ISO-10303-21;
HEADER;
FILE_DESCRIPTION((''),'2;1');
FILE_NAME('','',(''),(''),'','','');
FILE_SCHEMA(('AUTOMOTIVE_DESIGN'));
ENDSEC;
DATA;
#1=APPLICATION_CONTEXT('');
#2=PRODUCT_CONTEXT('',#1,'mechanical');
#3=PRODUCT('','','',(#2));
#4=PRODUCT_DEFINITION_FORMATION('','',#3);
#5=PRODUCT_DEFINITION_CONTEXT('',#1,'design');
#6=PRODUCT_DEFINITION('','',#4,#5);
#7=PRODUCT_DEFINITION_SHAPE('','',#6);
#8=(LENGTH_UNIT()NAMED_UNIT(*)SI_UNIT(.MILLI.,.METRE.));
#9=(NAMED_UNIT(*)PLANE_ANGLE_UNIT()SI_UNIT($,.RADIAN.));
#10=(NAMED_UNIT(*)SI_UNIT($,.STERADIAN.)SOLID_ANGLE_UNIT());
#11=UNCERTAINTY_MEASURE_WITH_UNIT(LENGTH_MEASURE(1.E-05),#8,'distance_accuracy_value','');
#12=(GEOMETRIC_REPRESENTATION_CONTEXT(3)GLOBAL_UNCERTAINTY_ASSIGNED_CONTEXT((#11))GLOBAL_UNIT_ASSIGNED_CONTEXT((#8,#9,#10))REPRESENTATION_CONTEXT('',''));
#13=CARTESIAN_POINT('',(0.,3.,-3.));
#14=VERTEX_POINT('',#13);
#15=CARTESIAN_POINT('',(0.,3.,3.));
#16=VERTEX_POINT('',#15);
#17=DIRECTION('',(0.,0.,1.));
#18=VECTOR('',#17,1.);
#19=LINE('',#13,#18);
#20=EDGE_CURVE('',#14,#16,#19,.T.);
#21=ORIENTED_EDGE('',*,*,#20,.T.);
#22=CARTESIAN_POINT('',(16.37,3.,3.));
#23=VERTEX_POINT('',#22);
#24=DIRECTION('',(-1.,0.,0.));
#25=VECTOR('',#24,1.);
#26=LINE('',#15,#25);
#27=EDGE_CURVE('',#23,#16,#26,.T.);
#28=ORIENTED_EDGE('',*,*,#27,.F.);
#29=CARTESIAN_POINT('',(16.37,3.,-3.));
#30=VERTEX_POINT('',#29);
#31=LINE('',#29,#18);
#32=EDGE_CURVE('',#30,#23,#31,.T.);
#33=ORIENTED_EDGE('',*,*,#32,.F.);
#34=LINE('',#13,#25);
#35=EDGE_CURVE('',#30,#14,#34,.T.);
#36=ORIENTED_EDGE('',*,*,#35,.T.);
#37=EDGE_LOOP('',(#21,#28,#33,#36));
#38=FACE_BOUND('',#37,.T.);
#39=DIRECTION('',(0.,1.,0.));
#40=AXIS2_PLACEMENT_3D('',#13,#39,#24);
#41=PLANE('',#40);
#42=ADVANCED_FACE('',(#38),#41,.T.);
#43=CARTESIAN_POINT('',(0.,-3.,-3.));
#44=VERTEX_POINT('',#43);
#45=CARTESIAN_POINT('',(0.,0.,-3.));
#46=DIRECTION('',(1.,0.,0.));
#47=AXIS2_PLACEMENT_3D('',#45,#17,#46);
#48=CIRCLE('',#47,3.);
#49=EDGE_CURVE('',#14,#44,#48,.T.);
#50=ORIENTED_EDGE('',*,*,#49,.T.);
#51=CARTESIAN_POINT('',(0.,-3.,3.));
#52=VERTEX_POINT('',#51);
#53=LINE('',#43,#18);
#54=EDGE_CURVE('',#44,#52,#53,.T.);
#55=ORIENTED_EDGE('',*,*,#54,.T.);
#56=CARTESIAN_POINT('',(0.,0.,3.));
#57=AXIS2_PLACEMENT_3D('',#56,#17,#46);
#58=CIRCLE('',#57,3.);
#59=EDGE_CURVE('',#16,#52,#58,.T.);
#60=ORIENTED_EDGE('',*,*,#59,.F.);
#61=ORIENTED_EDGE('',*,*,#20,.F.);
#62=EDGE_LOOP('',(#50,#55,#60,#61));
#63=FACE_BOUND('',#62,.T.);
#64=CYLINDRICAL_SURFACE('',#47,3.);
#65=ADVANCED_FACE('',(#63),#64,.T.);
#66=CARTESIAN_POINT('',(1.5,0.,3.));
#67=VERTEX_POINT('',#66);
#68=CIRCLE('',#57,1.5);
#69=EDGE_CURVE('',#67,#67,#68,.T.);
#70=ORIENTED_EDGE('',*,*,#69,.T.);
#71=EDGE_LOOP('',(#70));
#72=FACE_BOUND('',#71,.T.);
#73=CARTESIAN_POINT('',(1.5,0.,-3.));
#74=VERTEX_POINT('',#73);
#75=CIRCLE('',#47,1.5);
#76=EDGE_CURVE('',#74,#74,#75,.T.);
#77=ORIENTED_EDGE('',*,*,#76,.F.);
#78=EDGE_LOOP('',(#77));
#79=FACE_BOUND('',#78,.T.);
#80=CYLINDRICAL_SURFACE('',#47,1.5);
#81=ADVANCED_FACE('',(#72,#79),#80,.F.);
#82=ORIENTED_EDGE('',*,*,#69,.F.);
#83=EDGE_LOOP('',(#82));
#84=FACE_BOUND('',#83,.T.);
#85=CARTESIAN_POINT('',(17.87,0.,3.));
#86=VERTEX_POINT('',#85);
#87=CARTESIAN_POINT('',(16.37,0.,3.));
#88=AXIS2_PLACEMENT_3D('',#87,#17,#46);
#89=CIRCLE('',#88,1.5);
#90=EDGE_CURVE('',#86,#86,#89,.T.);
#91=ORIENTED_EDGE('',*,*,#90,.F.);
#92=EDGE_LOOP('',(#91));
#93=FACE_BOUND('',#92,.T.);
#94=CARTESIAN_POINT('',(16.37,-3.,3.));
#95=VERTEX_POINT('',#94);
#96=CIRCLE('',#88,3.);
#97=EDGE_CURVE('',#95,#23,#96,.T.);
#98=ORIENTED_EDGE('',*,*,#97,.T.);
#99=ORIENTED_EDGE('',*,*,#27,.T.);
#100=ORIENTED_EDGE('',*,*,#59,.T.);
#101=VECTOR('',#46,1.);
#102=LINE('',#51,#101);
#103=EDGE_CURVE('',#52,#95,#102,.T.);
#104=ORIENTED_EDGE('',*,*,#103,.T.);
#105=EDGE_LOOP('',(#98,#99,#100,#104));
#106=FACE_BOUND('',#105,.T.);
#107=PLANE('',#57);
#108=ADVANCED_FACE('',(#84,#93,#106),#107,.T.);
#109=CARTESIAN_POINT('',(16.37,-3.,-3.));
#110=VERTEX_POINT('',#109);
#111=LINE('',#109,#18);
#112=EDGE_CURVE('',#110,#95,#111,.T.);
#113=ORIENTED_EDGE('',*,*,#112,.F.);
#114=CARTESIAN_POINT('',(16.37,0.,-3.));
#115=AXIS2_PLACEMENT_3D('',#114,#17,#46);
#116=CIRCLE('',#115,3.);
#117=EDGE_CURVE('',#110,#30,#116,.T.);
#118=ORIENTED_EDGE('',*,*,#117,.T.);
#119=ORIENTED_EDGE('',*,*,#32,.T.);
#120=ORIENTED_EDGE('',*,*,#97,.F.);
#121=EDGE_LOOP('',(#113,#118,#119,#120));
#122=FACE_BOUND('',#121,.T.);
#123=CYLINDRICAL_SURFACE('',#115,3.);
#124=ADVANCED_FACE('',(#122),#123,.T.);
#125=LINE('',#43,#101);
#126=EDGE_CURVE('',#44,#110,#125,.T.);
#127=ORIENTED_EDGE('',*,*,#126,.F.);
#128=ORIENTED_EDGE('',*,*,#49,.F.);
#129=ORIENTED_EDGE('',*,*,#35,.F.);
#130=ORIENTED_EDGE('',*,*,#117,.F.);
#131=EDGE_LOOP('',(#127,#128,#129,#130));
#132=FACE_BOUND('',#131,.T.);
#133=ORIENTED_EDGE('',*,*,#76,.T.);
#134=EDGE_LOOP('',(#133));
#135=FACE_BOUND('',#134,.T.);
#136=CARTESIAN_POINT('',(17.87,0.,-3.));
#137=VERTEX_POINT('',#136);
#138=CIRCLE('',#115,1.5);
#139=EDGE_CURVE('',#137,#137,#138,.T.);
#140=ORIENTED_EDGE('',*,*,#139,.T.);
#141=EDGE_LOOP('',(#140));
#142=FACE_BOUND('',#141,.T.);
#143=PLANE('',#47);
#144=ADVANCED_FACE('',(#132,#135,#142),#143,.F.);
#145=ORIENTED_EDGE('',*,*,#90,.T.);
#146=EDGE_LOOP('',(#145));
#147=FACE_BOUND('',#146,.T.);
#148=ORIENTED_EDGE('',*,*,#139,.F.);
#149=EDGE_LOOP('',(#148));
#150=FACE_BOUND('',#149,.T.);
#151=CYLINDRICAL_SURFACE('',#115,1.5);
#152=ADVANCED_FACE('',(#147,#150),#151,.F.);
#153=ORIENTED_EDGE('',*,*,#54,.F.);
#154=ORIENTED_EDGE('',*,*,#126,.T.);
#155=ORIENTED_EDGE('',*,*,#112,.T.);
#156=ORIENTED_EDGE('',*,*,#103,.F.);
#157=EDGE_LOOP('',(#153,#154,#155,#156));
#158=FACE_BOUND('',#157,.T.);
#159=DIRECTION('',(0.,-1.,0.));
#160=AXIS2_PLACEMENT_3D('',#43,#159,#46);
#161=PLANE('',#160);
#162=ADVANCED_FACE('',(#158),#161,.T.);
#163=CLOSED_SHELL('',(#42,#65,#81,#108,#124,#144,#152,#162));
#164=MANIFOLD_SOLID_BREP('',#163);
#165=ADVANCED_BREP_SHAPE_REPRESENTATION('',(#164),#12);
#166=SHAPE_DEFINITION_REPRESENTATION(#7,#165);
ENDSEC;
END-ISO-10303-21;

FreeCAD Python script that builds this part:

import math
import FreeCAD as App
import Part
import Sketcher
from FreeCAD import Vector

doc = App.newDocument("Part")
body = doc.addObject("PartDesign::Body", "Body")

# Sketch on XY plane
sketch1 = body.newObject("Sketcher::SketchObject", "Sketch")
sketch1.AttachmentSupport = (doc.getObject("XY_Plane"), [""])
sketch1.MapMode = "FlatFace"
sketch1.addGeometry([
    Part.LineSegment(Vector(16.4, 3, 0), Vector(0, 3, 0)),  # 0
    Part.ArcOfCircle(Part.Circle(Vector(0, 0, 0), Vector(0, 0, 1), 3), math.radians(90), math.radians(270)),  # 1
    Part.LineSegment(Vector(0, -3, 0), Vector(16.4, -3, 0)),  # 2
    Part.ArcOfCircle(Part.Circle(Vector(16.4, 0, 0), Vector(0, 0, 1), 3), math.radians(-90), math.radians(90)),  # 3
    Part.Circle(Vector(16.4, 0, 0), Vector(0, 0, 1), 1.5),  # 4
    Part.Circle(Vector(0, 0, 0), Vector(0, 0, 1), 1.5),  # 5
], False)
sketch1.addConstraint([
    Sketcher.Constraint("Tangent", 0, 2, 1, 1),
    Sketcher.Constraint("Tangent", 1, 2, 2, 1),
    Sketcher.Constraint("Tangent", 2, 2, 3, 1),
    Sketcher.Constraint("Tangent", 3, 2, 0, 1),
    Sketcher.Constraint("Horizontal", 0),
    Sketcher.Constraint("Horizontal", 2),
    Sketcher.Constraint("Coincident", 1, 3, -1, 1),
    Sketcher.Constraint("Coincident", 5, 3, -1, 1),
    Sketcher.Constraint("Coincident", 4, 3, 3, 3),
    Sketcher.Constraint("Equal", 4, 5),
    Sketcher.Constraint("Diameter", 4, 3.0),
    Sketcher.Constraint("Radius", 1, 3.0),
    Sketcher.Constraint("DistanceX", 0, 2, 0, 1, 16.37),
])
pad1 = body.newObject("PartDesign::Pad", "Pad")
pad1.Profile = sketch1
pad1.Type = "TwoLengths"
pad1.Length = 3
pad1.Length2 = 3

doc.recompute()
